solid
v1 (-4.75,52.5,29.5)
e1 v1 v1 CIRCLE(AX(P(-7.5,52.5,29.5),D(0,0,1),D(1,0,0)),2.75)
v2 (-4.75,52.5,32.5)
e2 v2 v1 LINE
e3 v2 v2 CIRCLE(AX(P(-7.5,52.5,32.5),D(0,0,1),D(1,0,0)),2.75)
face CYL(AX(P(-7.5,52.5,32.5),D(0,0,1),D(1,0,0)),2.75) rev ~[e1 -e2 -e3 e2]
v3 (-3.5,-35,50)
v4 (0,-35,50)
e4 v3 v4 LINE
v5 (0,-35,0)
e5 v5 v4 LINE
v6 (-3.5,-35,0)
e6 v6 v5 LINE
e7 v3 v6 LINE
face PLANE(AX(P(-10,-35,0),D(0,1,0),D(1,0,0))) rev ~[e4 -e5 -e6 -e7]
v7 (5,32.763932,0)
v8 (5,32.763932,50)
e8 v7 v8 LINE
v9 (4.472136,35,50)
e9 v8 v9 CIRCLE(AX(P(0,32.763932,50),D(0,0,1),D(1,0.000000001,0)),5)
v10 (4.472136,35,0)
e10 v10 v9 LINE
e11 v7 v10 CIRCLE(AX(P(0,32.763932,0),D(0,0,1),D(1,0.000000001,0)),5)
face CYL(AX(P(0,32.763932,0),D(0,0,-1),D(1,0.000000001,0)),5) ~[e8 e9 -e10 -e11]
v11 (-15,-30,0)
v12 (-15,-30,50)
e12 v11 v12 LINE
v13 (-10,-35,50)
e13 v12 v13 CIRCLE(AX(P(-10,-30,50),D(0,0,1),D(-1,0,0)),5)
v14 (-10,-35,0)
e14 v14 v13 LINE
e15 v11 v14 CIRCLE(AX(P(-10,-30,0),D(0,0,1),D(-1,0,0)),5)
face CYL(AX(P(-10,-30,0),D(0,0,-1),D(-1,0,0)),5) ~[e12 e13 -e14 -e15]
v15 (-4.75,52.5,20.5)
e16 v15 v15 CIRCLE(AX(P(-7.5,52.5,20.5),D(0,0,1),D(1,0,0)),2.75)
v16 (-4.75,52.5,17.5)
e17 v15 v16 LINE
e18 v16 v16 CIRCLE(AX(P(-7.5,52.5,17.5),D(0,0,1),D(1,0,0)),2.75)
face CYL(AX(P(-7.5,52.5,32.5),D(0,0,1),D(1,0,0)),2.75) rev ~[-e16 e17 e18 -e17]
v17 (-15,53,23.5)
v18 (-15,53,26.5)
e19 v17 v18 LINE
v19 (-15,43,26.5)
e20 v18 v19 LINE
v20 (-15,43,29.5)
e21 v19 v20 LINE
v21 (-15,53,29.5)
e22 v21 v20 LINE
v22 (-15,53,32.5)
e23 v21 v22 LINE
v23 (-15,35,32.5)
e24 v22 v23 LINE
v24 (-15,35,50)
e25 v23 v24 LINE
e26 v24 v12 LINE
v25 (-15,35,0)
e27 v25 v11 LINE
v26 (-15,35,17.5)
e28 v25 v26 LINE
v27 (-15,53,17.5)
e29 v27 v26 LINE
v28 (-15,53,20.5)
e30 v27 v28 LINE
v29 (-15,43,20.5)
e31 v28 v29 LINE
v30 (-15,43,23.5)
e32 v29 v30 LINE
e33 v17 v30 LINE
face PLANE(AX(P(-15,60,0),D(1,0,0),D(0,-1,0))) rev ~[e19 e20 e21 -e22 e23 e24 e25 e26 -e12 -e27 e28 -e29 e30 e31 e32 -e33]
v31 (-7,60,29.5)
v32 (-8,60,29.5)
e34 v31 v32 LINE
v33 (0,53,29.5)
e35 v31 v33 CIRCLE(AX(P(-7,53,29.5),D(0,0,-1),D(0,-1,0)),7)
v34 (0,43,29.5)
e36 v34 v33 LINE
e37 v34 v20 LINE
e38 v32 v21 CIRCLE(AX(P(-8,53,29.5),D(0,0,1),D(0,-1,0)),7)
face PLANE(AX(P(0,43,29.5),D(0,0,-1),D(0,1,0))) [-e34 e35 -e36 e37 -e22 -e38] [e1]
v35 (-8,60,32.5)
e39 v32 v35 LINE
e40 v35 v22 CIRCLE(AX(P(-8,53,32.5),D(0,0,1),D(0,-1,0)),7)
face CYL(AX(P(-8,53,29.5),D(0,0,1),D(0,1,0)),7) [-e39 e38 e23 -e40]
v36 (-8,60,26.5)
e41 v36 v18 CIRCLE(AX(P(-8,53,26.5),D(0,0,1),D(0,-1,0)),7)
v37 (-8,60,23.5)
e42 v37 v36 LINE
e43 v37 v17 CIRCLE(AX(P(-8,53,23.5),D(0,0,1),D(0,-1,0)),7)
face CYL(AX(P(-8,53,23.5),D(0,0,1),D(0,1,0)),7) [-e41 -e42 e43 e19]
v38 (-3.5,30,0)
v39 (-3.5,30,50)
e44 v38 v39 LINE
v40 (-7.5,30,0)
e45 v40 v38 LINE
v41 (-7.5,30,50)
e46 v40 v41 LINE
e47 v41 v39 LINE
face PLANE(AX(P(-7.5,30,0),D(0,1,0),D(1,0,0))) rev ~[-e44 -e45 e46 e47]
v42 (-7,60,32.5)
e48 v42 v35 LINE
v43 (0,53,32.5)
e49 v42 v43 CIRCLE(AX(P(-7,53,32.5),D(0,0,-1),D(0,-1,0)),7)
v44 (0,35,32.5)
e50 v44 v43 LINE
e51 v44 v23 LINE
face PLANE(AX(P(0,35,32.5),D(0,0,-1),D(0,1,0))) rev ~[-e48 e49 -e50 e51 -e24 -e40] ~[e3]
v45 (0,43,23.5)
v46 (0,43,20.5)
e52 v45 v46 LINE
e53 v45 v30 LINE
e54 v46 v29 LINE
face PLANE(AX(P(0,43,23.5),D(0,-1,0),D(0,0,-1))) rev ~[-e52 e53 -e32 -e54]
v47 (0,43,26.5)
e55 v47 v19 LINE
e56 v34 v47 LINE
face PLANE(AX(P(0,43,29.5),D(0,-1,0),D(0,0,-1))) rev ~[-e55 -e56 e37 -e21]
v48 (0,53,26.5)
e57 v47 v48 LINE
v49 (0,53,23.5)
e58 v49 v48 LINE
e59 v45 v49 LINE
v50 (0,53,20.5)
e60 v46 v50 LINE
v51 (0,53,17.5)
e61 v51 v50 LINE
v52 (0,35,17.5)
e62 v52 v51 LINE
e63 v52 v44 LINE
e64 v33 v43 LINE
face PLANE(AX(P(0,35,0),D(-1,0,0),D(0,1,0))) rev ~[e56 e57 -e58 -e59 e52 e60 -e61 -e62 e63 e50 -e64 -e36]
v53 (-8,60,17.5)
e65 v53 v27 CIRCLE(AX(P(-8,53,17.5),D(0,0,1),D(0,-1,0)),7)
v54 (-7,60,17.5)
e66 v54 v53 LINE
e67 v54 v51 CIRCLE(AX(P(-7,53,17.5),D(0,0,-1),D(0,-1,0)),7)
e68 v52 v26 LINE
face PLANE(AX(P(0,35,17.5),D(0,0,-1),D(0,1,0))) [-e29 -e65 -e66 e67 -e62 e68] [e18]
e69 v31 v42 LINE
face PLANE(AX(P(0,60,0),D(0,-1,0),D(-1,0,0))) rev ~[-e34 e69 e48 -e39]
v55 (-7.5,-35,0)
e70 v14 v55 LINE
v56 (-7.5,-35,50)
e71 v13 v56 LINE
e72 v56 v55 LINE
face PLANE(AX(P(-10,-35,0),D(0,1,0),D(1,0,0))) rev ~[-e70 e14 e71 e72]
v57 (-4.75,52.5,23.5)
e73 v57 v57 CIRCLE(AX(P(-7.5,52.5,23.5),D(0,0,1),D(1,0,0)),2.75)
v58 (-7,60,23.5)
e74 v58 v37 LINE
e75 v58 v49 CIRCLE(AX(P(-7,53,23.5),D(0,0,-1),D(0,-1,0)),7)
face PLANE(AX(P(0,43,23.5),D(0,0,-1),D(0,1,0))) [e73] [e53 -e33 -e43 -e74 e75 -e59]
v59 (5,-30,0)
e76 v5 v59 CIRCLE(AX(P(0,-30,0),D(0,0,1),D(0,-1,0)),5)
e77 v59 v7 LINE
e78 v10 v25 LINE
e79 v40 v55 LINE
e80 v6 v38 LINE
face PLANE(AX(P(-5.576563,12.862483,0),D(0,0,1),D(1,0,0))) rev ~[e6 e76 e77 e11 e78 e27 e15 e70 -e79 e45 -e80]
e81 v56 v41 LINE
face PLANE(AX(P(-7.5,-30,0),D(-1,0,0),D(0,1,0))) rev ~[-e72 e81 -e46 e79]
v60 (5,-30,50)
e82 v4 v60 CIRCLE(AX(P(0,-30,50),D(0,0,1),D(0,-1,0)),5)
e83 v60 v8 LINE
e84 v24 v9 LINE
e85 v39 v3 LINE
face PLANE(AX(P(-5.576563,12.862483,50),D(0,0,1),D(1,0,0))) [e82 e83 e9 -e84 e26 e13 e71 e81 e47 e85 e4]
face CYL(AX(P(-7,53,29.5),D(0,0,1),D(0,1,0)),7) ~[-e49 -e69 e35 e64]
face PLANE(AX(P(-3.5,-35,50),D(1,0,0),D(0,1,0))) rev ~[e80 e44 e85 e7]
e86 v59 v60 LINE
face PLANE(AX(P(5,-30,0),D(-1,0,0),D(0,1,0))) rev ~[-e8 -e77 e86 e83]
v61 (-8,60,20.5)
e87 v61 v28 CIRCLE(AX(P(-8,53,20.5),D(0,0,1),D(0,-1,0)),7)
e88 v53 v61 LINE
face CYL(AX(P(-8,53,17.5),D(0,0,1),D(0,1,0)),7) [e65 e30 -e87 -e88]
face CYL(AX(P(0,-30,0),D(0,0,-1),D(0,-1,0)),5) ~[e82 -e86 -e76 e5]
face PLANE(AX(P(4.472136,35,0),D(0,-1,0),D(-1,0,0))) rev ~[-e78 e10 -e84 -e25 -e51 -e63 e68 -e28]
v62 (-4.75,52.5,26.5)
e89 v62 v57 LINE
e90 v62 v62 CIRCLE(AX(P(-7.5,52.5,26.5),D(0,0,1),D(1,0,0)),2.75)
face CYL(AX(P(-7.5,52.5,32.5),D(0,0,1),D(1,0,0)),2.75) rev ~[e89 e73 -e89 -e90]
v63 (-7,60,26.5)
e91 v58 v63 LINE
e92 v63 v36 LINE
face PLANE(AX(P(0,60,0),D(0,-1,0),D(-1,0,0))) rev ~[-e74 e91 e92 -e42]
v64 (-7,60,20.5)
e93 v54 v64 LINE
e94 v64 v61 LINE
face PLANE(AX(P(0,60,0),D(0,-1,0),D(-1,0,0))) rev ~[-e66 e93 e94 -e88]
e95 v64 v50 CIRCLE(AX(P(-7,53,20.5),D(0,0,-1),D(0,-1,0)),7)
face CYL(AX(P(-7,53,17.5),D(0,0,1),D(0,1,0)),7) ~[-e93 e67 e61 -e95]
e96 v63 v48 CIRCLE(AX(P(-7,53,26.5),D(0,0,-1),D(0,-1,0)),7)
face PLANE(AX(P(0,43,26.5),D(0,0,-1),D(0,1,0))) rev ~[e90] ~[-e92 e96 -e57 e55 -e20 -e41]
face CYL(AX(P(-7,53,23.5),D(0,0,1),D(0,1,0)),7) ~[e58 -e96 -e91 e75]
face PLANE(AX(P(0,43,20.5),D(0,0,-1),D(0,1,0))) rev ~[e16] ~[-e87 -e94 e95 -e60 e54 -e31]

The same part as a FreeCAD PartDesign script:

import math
import FreeCAD as App
import Part
import Sketcher


def edges_at(feature, points):
    """Names of the edges that pass closest to the given points."""
    edges = feature.Shape.Edges
    near = lambda p: min(range(len(edges)), key=lambda i: edges[i].distToShape(Part.Vertex(*p))[0])
    return sorted({f"Edge{near(p) + 1}" for p in points})

doc = App.newDocument("Part")
body = doc.addObject("PartDesign::Body", "Body")

sketch1 = body.newObject("Sketcher::SketchObject", "Sketch")
sketch1.AttachmentSupport = (doc.getObject("XY_Plane"), [""])
sketch1.MapMode = "FlatFace"
sketch1.addGeometry([
    Part.LineSegment(App.Vector(4.5, 35, 0), App.Vector(0, 35, 0)),
    Part.LineSegment(App.Vector(0, 35, 0), App.Vector(0, 60, 0)),
    Part.LineSegment(App.Vector(0, 60, 0), App.Vector(-15, 60, 0)),
    Part.LineSegment(App.Vector(-15, 60, 0), App.Vector(-15, -30, 0)),
    Part.ArcOfCircle(Part.Circle(App.Vector(-10, -30, 0), App.Vector(0, 0, 1), 5), math.radians(180), math.radians(270)),
    Part.LineSegment(App.Vector(-10, -35, 0), App.Vector(0, -35, 0)),
    Part.ArcOfCircle(Part.Circle(App.Vector(0, -30, 0), App.Vector(0, 0, 1), 5), math.radians(-90), math.radians(0)),
    Part.LineSegment(App.Vector(5, -30, 0), App.Vector(5, 32.8, 0)),
    Part.ArcOfCircle(Part.Circle(App.Vector(0, 32.8, 0), App.Vector(0, 0, 1), 5), math.radians(0), math.radians(27)),
    Part.LineSegment(App.Vector(-3.5, -30, 0), App.Vector(-7.5, -30, 0)),
    Part.LineSegment(App.Vector(-7.5, -30, 0), App.Vector(-7.5, 30, 0)),
    Part.LineSegment(App.Vector(-7.5, 30, 0), App.Vector(-3.5, 30, 0)),
    Part.LineSegment(App.Vector(-3.5, 30, 0), App.Vector(-3.5, -30, 0)),
], False)
sketch1.addConstraint([
    Sketcher.Constraint("Coincident", 0, 2, 1, 1),
    Sketcher.Constraint("Coincident", 1, 2, 2, 1),
    Sketcher.Constraint("Coincident", 2, 2, 3, 1),
    Sketcher.Constraint("Tangent", 3, 2, 4, 1),
    Sketcher.Constraint("Tangent", 4, 2, 5, 1),
    Sketcher.Constraint("Tangent", 5, 2, 6, 1),
    Sketcher.Constraint("Tangent", 6, 2, 7, 1),
    Sketcher.Constraint("Tangent", 7, 2, 8, 1),
    Sketcher.Constraint("Coincident", 8, 2, 0, 1),
    Sketcher.Constraint("Coincident", 9, 2, 10, 1),
    Sketcher.Constraint("Coincident", 10, 2, 11, 1),
    Sketcher.Constraint("Coincident", 11, 2, 12, 1),
    Sketcher.Constraint("Coincident", 12, 2, 9, 1),
    Sketcher.Constraint("Horizontal", 0),
    Sketcher.Constraint("Vertical", 1),
    Sketcher.Constraint("Horizontal", 2),
    Sketcher.Constraint("Vertical", 3),
    Sketcher.Constraint("Horizontal", 5),
    Sketcher.Constraint("Vertical", 7),
    Sketcher.Constraint("Horizontal", 9),
    Sketcher.Constraint("Vertical", 10),
    Sketcher.Constraint("Horizontal", 11),
    Sketcher.Constraint("Vertical", 12),
    Sketcher.Constraint("Equal", 4, 6),
    Sketcher.Constraint("Equal", 6, 8),
    Sketcher.Constraint("Symmetric", 0, 2, 5, 2, -1, 1),
    Sketcher.Constraint("PointOnObject", 6, 3, -2),
    Sketcher.Constraint("Horizontal", 6, 2, 9, 2),
    Sketcher.Constraint("Radius", 4, 5.0),
    Sketcher.Constraint("DistanceX", 2, 2, 2, 1, 15.0),
    Sketcher.Constraint("DistanceX", 9, 2, 9, 1, 4.0),
    Sketcher.Constraint("DistanceY", 1, 1, 1, 2, 25.0),
    Sketcher.Constraint("DistanceY", 3, 2, 3, 1, 90.0),
    Sketcher.Constraint("DistanceY", 10, 1, 10, 2, 60.0),
    Sketcher.Constraint("DistanceX", 9, 2, -1, 1, 7.5),
    Sketcher.Constraint("DistanceX", 0, 2, 0, 1, 4.472136),
])
pad1 = body.newObject("PartDesign::Pad", "Pad")
pad1.Profile = sketch1
pad1.Length = 50

sketch2 = body.newObject("Sketcher::SketchObject", "Sketch001")
sketch2.AttachmentSupport = (doc.getObject("YZ_Plane"), [""])
sketch2.MapMode = "FlatFace"
sketch2.addGeometry([
    Part.LineSegment(App.Vector(60, 18, 0), App.Vector(35, 18, 0)),
    Part.LineSegment(App.Vector(35, 18, 0), App.Vector(35, 0, 0)),
    Part.LineSegment(App.Vector(35, 0, 0), App.Vector(60, 0, 0)),
    Part.LineSegment(App.Vector(60, 0, 0), App.Vector(60, 18, 0)),
], False)
sketch2.addConstraint([
    Sketcher.Constraint("Coincident", 0, 2, 1, 1),
    Sketcher.Constraint("Coincident", 1, 2, 2, 1),
    Sketcher.Constraint("Coincident", 2, 2, 3, 1),
    Sketcher.Constraint("Coincident", 3, 2, 0, 1),
    Sketcher.Constraint("Horizontal", 0),
    Sketcher.Constraint("Vertical", 1),
    Sketcher.Constraint("Horizontal", 2),
    Sketcher.Constraint("Vertical", 3),
    Sketcher.Constraint("PointOnObject", 1, 2, -1),
    Sketcher.Constraint("DistanceX", 0, 2, 0, 1, 25.0),
    Sketcher.Constraint("DistanceY", 1, 2, 1, 1, 17.5),
    Sketcher.Constraint("DistanceX", -1, 1, 0, 2, 35.0),
])
pocket1 = body.newObject("PartDesign::Pocket", "Pocket")
pocket1.Profile = sketch2
pocket1.Type = "UpToFirst"

sketch3 = body.newObject("Sketcher::SketchObject", "Sketch002")
sketch3.AttachmentSupport = (doc.getObject("YZ_Plane"), [""])
sketch3.MapMode = "FlatFace"
sketch3.addGeometry([
    Part.LineSegment(App.Vector(60, 50, 0), App.Vector(35, 50, 0)),
    Part.LineSegment(App.Vector(35, 50, 0), App.Vector(35, 32, 0)),
    Part.LineSegment(App.Vector(35, 32, 0), App.Vector(60, 32, 0)),
    Part.LineSegment(App.Vector(60, 32, 0), App.Vector(60, 50, 0)),
], False)
sketch3.addConstraint([
    Sketcher.Constraint("Coincident", 0, 2, 1, 1),
    Sketcher.Constraint("Coincident", 1, 2, 2, 1),
    Sketcher.Constraint("Coincident", 2, 2, 3, 1),
    Sketcher.Constraint("Coincident", 3, 2, 0, 1),
    Sketcher.Constraint("Horizontal", 0),
    Sketcher.Constraint("Vertical", 1),
    Sketcher.Constraint("Horizontal", 2),
    Sketcher.Constraint("Vertical", 3),
    Sketcher.Constraint("DistanceX", 0, 2, 0, 1, 25.0),
    Sketcher.Constraint("DistanceY", 1, 2, 1, 1, 17.5),
    Sketcher.Constraint("DistanceX", -1, 1, 0, 2, 35.0),
    Sketcher.Constraint("DistanceY", -1, 1, 0, 2, 50.0),
])
pocket2 = body.newObject("PartDesign::Pocket", "Pocket001")
pocket2.Profile = sketch3
pocket2.Type = "UpToFirst"

sketch4 = body.newObject("Sketcher::SketchObject", "Sketch003")
sketch4.AttachmentSupport = (doc.getObject("YZ_Plane"), [""])
sketch4.MapMode = "FlatFace"
sketch4.addGeometry([
    Part.LineSegment(App.Vector(60, 29.5, 0), App.Vector(43, 29.5, 0)),
    Part.LineSegment(App.Vector(43, 29.5, 0), App.Vector(43, 26.5, 0)),
    Part.LineSegment(App.Vector(43, 26.5, 0), App.Vector(60, 26.5, 0)),
    Part.LineSegment(App.Vector(60, 26.5, 0), App.Vector(60, 29.5, 0)),
], False)
sketch4.addConstraint([
    Sketcher.Constraint("Coincident", 0, 2, 1, 1),
    Sketcher.Constraint("Coincident", 1, 2, 2, 1),
    Sketcher.Constraint("Coincident", 2, 2, 3, 1),
    Sketcher.Constraint("Coincident", 3, 2, 0, 1),
    Sketcher.Constraint("Horizontal", 0),
    Sketcher.Constraint("Vertical", 1),
    Sketcher.Constraint("Horizontal", 2),
    Sketcher.Constraint("Vertical", 3),
    Sketcher.Constraint("DistanceX", 0, 2, 0, 1, 17.0),
    Sketcher.Constraint("DistanceY", 1, 2, 1, 1, 3.0),
    Sketcher.Constraint("DistanceX", -1, 1, 0, 2, 43.0),
    Sketcher.Constraint("DistanceY", -1, 1, 0, 2, 29.5),
])
pocket3 = body.newObject("PartDesign::Pocket", "Pocket002")
pocket3.Profile = sketch4
pocket3.Type = "UpToFirst"

sketch5 = body.newObject("Sketcher::SketchObject", "Sketch004")
sketch5.AttachmentSupport = (doc.getObject("YZ_Plane"), [""])
sketch5.MapMode = "FlatFace"
sketch5.addGeometry([
    Part.LineSegment(App.Vector(60, 23.5, 0), App.Vector(43, 23.5, 0)),
    Part.LineSegment(App.Vector(43, 23.5, 0), App.Vector(43, 20.5, 0)),
    Part.LineSegment(App.Vector(43, 20.5, 0), App.Vector(60, 20.5, 0)),
    Part.LineSegment(App.Vector(60, 20.5, 0), App.Vector(60, 23.5, 0)),
], False)
sketch5.addConstraint([
    Sketcher.Constraint("Coincident", 0, 2, 1, 1),
    Sketcher.Constraint("Coincident", 1, 2, 2, 1),
    Sketcher.Constraint("Coincident", 2, 2, 3, 1),
    Sketcher.Constraint("Coincident", 3, 2, 0, 1),
    Sketcher.Constraint("Horizontal", 0),
    Sketcher.Constraint("Vertical", 1),
    Sketcher.Constraint("Horizontal", 2),
    Sketcher.Constraint("Vertical", 3),
    Sketcher.Constraint("DistanceX", 0, 2, 0, 1, 17.0),
    Sketcher.Constraint("DistanceY", 1, 2, 1, 1, 3.0),
    Sketcher.Constraint("DistanceX", -1, 1, 0, 2, 43.0),
    Sketcher.Constraint("DistanceY", -1, 1, 0, 2, 23.5),
])
pocket4 = body.newObject("PartDesign::Pocket", "Pocket003")
pocket4.Profile = sketch5
pocket4.Type = "UpToFirst"

sketch6 = body.newObject("Sketcher::SketchObject", "Sketch005")
sketch6.AttachmentSupport = (doc.getObject("XY_Plane"), [""])
sketch6.MapMode = "FlatFace"
sketch6.AttachmentOffset = App.Placement(App.Vector(0, 0, 32.5), App.Rotation())
sketch6.addGeometry(Part.Circle(App.Vector(-7.5, 52.5, 0), App.Vector(0, 0, 1), 2.8), False)
sketch6.addConstraint([
    Sketcher.Constraint("Diameter", 0, 5.5),
    Sketcher.Constraint("DistanceX", 0, 3, -1, 1, 7.5),
    Sketcher.Constraint("DistanceY", -1, 1, 0, 3, 52.5),
])
pocket5 = body.newObject("PartDesign::Pocket", "Pocket004")
pocket5.Profile = sketch6
pocket5.Type = "ThroughAll"

sketch7 = body.newObject("Sketcher::SketchObject", "Sketch006")
sketch7.AttachmentSupport = (doc.getObject("XY_Plane"), [""])
sketch7.MapMode = "FlatFace"
sketch7.AttachmentOffset = App.Placement(App.Vector(0, 0, 50), App.Rotation())
sketch7.addGeometry([
    Part.LineSegment(App.Vector(-7.5, -30, 0), App.Vector(-7.5, -35, 0)),
    Part.LineSegment(App.Vector(-7.5, -35, 0), App.Vector(-3.5, -35, 0)),
    Part.LineSegment(App.Vector(-3.5, -35, 0), App.Vector(-3.5, -30, 0)),
    Part.LineSegment(App.Vector(-3.5, -30, 0), App.Vector(-7.5, -30, 0)),
], False)
sketch7.addConstraint([
    Sketcher.Constraint("Coincident", 0, 2, 1, 1),
    Sketcher.Constraint("Coincident", 1, 2, 2, 1),
    Sketcher.Constraint("Coincident", 2, 2, 3, 1),
    Sketcher.Constraint("Coincident", 3, 2, 0, 1),
    Sketcher.Constraint("Vertical", 0),
    Sketcher.Constraint("Horizontal", 1),
    Sketcher.Constraint("Vertical", 2),
    Sketcher.Constraint("Horizontal", 3),
    Sketcher.Constraint("DistanceX", 1, 1, 1, 2, 4.0),
    Sketcher.Constraint("DistanceY", 0, 2, 0, 1, 5.0),
    Sketcher.Constraint("DistanceY", 0, 2, -1, 1, 35.0),
    Sketcher.Constraint("DistanceX", 0, 2, -1, 1, 7.5),
])
pocket6 = body.newObject("PartDesign::Pocket", "Pocket005")
pocket6.Profile = sketch7
pocket6.Type = "ThroughAll"
doc.recompute()

fillet = body.newObject("PartDesign::Fillet", "Fillet")
fillet.Base = (pocket6, edges_at(pocket6, [
    (-15, 60, 31),
    (-15, 60, 25),
    (-15, 60, 19),
    (0, 60, 31),
    (0, 60, 25),
    (0, 60, 19),
]))
fillet.Radius = 7

doc.recompute()
